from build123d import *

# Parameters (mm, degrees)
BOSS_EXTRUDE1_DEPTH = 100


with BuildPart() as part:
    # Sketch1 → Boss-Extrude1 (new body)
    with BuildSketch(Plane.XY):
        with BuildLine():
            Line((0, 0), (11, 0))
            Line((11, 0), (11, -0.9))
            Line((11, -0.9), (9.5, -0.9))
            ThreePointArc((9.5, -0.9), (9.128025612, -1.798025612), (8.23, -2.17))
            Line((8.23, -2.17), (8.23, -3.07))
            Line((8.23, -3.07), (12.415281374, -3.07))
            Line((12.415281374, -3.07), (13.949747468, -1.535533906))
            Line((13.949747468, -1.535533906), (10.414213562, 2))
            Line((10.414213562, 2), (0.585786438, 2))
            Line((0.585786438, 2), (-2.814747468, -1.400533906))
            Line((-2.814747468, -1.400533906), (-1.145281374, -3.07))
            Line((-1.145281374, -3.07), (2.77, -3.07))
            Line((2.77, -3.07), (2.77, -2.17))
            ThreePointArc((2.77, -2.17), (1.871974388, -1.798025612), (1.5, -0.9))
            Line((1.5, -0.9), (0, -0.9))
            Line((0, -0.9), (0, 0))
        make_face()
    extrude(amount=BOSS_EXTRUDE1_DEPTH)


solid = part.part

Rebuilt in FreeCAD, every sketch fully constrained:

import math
import FreeCAD as App
import Part
import Sketcher
from FreeCAD import Vector
Q = App.Units.Quantity

doc = App.newDocument("Part")
params = doc.addObject("Spreadsheet::Sheet", "Params")
for row, (alias, value) in enumerate([
    ("sketch1_width", "11 mm"),
    ("sketch1_radius", "1.27 mm"),
    ("sketch1_length", "5 mm"),
    ("sketch1_width2", "1.5 mm"),
    ("sketch1_height", "0.9 mm"),
    ("pad1_length", "100 mm"),
], start=1):
    params.set(f"A{row}", alias)
    params.set(f"B{row}", "=" + value)
    params.setAlias(f"B{row}", alias)

body = doc.addObject("PartDesign::Body", "Body")

sketch1 = body.newObject("Sketcher::SketchObject", "Sketch")
sketch1.AttachmentSupport = (doc.getObject("XY_Plane"), [""])
sketch1.MapMode = "FlatFace"
sketch1.addGeometry([
    Part.LineSegment(Vector(0, 0, 0), Vector(11, 0, 0)),
    Part.LineSegment(Vector(11, 0, 0), Vector(11, -0.9, 0)),
    Part.LineSegment(Vector(11, -0.9, 0), Vector(9.5, -0.9, 0)),
    Part.ArcOfCircle(Part.Circle(Vector(8.2, -0.9, 0), Vector(0, 0, 1), 1.3), math.radians(-90), math.radians(0)),
    Part.LineSegment(Vector(8.2, -2.2, 0), Vector(8.2, -3.1, 0)),
    Part.LineSegment(Vector(8.2, -3.1, 0), Vector(12.4, -3.1, 0)),
    Part.LineSegment(Vector(12.4, -3.1, 0), Vector(13.9, -1.5, 0)),
    Part.LineSegment(Vector(13.9, -1.5, 0), Vector(10.4, 2, 0)),
    Part.LineSegment(Vector(10.4, 2, 0), Vector(0.6, 2, 0)),
    Part.LineSegment(Vector(0.6, 2, 0), Vector(-2.8, -1.4, 0)),
    Part.LineSegment(Vector(-2.8, -1.4, 0), Vector(-1.1, -3.1, 0)),
    Part.LineSegment(Vector(-1.1, -3.1, 0), Vector(2.8, -3.1, 0)),
    Part.LineSegment(Vector(2.8, -3.1, 0), Vector(2.8, -2.2, 0)),
    Part.ArcOfCircle(Part.Circle(Vector(2.8, -0.9, 0), Vector(0, 0, 1), 1.3), math.radians(180), math.radians(270)),
    Part.LineSegment(Vector(1.5, -0.9, 0), Vector(0, -0.9, 0)),
    Part.LineSegment(Vector(0, -0.9, 0), Vector(0, 0, 0)),
], False)
sketch1.addConstraint([
    Sketcher.Constraint("Coincident", 0, 2, 1, 1),
    Sketcher.Constraint("Coincident", 1, 2, 2, 1),
    Sketcher.Constraint("Coincident", 2, 2, 3, 2),
    Sketcher.Constraint("Coincident", 3, 1, 4, 1),
    Sketcher.Constraint("Coincident", 4, 2, 5, 1),
    Sketcher.Constraint("Coincident", 5, 2, 6, 1),
    Sketcher.Constraint("Coincident", 6, 2, 7, 1),
    Sketcher.Constraint("Coincident", 7, 2, 8, 1),
    Sketcher.Constraint("Coincident", 8, 2, 9, 1),
    Sketcher.Constraint("Coincident", 9, 2, 10, 1),
    Sketcher.Constraint("Coincident", 10, 2, 11, 1),
    Sketcher.Constraint("Coincident", 11, 2, 12, 1),
    Sketcher.Constraint("Coincident", 12, 2, 13, 2),
    Sketcher.Constraint("Coincident", 13, 1, 14, 1),
    Sketcher.Constraint("Coincident", 14, 2, 15, 1),
    Sketcher.Constraint("Coincident", 15, 2, 0, 1),
    Sketcher.Constraint("Horizontal", 0),
    Sketcher.Constraint("Vertical", 1),
    Sketcher.Constraint("Horizontal", 2),
    Sketcher.Constraint("Vertical", 4),
    Sketcher.Constraint("Horizontal", 5),
    Sketcher.Constraint("Horizontal", 8),
    Sketcher.Constraint("Horizontal", 11),
    Sketcher.Constraint("Vertical", 12),
    Sketcher.Constraint("Horizontal", 14),
    Sketcher.Constraint("Vertical", 15),
    Sketcher.Constraint("Coincident", 15, 2, -1, 1),
    Sketcher.Constraint("Equal", 3, 13),
    Sketcher.Constraint("Perpendicular", 6, 7),
    Sketcher.Constraint("Perpendicular", 7, 9),
    Sketcher.Constraint("Perpendicular", 9, 10),
    Sketcher.Constraint("Horizontal", 3, 3, 13, 3),
    Sketcher.Constraint("Horizontal", 13, 3, 1, 2),
    Sketcher.Constraint("Horizontal", 5, 2, 10, 2),
    Sketcher.Constraint("Horizontal", 2, 2, 13, 1),
    Sketcher.Constraint("Vertical", 13, 3, 11, 2),
    Sketcher.Constraint("Equal", 2, 14),
    Sketcher.Constraint("Equal", 1, 4),
    Sketcher.Constraint("DistanceX", 0, 1, 0, 2, 11.0),
    Sketcher.Constraint("Angle", 6, Q("45 deg")),
    Sketcher.Constraint("Radius", 3, 1.27),
    Sketcher.Constraint("Distance", 7, 5.0),
    Sketcher.Constraint("DistanceX", 2, 2, 2, 1, 1.5),
    Sketcher.Constraint("DistanceY", 1, 2, 1, 1, 0.9),
    Sketcher.Constraint("DistanceY", -1, 1, 7, 2, 2.0),
    Sketcher.Constraint("DistanceX", -1, 1, 3, 1, 8.23),
    Sketcher.Constraint("DistanceX", 5, 1, 5, 2, 4.185281),
    Sketcher.Constraint("DistanceX", 11, 1, 11, 2, 3.915281),
    Sketcher.Constraint("Distance", 9, 4.809081),
])
sketch1.setExpression("Constraints[38]", "Params.sketch1_width")
sketch1.setExpression("Constraints[40]", "Params.sketch1_radius")
sketch1.setExpression("Constraints[41]", "Params.sketch1_length")
sketch1.setExpression("Constraints[42]", "Params.sketch1_width2")
sketch1.setExpression("Constraints[43]", "Params.sketch1_height")
pad1 = body.newObject("PartDesign::Pad", "Pad")
pad1.Profile = sketch1
pad1.setExpression("Length", "Params.pad1_length")

doc.recompute()
